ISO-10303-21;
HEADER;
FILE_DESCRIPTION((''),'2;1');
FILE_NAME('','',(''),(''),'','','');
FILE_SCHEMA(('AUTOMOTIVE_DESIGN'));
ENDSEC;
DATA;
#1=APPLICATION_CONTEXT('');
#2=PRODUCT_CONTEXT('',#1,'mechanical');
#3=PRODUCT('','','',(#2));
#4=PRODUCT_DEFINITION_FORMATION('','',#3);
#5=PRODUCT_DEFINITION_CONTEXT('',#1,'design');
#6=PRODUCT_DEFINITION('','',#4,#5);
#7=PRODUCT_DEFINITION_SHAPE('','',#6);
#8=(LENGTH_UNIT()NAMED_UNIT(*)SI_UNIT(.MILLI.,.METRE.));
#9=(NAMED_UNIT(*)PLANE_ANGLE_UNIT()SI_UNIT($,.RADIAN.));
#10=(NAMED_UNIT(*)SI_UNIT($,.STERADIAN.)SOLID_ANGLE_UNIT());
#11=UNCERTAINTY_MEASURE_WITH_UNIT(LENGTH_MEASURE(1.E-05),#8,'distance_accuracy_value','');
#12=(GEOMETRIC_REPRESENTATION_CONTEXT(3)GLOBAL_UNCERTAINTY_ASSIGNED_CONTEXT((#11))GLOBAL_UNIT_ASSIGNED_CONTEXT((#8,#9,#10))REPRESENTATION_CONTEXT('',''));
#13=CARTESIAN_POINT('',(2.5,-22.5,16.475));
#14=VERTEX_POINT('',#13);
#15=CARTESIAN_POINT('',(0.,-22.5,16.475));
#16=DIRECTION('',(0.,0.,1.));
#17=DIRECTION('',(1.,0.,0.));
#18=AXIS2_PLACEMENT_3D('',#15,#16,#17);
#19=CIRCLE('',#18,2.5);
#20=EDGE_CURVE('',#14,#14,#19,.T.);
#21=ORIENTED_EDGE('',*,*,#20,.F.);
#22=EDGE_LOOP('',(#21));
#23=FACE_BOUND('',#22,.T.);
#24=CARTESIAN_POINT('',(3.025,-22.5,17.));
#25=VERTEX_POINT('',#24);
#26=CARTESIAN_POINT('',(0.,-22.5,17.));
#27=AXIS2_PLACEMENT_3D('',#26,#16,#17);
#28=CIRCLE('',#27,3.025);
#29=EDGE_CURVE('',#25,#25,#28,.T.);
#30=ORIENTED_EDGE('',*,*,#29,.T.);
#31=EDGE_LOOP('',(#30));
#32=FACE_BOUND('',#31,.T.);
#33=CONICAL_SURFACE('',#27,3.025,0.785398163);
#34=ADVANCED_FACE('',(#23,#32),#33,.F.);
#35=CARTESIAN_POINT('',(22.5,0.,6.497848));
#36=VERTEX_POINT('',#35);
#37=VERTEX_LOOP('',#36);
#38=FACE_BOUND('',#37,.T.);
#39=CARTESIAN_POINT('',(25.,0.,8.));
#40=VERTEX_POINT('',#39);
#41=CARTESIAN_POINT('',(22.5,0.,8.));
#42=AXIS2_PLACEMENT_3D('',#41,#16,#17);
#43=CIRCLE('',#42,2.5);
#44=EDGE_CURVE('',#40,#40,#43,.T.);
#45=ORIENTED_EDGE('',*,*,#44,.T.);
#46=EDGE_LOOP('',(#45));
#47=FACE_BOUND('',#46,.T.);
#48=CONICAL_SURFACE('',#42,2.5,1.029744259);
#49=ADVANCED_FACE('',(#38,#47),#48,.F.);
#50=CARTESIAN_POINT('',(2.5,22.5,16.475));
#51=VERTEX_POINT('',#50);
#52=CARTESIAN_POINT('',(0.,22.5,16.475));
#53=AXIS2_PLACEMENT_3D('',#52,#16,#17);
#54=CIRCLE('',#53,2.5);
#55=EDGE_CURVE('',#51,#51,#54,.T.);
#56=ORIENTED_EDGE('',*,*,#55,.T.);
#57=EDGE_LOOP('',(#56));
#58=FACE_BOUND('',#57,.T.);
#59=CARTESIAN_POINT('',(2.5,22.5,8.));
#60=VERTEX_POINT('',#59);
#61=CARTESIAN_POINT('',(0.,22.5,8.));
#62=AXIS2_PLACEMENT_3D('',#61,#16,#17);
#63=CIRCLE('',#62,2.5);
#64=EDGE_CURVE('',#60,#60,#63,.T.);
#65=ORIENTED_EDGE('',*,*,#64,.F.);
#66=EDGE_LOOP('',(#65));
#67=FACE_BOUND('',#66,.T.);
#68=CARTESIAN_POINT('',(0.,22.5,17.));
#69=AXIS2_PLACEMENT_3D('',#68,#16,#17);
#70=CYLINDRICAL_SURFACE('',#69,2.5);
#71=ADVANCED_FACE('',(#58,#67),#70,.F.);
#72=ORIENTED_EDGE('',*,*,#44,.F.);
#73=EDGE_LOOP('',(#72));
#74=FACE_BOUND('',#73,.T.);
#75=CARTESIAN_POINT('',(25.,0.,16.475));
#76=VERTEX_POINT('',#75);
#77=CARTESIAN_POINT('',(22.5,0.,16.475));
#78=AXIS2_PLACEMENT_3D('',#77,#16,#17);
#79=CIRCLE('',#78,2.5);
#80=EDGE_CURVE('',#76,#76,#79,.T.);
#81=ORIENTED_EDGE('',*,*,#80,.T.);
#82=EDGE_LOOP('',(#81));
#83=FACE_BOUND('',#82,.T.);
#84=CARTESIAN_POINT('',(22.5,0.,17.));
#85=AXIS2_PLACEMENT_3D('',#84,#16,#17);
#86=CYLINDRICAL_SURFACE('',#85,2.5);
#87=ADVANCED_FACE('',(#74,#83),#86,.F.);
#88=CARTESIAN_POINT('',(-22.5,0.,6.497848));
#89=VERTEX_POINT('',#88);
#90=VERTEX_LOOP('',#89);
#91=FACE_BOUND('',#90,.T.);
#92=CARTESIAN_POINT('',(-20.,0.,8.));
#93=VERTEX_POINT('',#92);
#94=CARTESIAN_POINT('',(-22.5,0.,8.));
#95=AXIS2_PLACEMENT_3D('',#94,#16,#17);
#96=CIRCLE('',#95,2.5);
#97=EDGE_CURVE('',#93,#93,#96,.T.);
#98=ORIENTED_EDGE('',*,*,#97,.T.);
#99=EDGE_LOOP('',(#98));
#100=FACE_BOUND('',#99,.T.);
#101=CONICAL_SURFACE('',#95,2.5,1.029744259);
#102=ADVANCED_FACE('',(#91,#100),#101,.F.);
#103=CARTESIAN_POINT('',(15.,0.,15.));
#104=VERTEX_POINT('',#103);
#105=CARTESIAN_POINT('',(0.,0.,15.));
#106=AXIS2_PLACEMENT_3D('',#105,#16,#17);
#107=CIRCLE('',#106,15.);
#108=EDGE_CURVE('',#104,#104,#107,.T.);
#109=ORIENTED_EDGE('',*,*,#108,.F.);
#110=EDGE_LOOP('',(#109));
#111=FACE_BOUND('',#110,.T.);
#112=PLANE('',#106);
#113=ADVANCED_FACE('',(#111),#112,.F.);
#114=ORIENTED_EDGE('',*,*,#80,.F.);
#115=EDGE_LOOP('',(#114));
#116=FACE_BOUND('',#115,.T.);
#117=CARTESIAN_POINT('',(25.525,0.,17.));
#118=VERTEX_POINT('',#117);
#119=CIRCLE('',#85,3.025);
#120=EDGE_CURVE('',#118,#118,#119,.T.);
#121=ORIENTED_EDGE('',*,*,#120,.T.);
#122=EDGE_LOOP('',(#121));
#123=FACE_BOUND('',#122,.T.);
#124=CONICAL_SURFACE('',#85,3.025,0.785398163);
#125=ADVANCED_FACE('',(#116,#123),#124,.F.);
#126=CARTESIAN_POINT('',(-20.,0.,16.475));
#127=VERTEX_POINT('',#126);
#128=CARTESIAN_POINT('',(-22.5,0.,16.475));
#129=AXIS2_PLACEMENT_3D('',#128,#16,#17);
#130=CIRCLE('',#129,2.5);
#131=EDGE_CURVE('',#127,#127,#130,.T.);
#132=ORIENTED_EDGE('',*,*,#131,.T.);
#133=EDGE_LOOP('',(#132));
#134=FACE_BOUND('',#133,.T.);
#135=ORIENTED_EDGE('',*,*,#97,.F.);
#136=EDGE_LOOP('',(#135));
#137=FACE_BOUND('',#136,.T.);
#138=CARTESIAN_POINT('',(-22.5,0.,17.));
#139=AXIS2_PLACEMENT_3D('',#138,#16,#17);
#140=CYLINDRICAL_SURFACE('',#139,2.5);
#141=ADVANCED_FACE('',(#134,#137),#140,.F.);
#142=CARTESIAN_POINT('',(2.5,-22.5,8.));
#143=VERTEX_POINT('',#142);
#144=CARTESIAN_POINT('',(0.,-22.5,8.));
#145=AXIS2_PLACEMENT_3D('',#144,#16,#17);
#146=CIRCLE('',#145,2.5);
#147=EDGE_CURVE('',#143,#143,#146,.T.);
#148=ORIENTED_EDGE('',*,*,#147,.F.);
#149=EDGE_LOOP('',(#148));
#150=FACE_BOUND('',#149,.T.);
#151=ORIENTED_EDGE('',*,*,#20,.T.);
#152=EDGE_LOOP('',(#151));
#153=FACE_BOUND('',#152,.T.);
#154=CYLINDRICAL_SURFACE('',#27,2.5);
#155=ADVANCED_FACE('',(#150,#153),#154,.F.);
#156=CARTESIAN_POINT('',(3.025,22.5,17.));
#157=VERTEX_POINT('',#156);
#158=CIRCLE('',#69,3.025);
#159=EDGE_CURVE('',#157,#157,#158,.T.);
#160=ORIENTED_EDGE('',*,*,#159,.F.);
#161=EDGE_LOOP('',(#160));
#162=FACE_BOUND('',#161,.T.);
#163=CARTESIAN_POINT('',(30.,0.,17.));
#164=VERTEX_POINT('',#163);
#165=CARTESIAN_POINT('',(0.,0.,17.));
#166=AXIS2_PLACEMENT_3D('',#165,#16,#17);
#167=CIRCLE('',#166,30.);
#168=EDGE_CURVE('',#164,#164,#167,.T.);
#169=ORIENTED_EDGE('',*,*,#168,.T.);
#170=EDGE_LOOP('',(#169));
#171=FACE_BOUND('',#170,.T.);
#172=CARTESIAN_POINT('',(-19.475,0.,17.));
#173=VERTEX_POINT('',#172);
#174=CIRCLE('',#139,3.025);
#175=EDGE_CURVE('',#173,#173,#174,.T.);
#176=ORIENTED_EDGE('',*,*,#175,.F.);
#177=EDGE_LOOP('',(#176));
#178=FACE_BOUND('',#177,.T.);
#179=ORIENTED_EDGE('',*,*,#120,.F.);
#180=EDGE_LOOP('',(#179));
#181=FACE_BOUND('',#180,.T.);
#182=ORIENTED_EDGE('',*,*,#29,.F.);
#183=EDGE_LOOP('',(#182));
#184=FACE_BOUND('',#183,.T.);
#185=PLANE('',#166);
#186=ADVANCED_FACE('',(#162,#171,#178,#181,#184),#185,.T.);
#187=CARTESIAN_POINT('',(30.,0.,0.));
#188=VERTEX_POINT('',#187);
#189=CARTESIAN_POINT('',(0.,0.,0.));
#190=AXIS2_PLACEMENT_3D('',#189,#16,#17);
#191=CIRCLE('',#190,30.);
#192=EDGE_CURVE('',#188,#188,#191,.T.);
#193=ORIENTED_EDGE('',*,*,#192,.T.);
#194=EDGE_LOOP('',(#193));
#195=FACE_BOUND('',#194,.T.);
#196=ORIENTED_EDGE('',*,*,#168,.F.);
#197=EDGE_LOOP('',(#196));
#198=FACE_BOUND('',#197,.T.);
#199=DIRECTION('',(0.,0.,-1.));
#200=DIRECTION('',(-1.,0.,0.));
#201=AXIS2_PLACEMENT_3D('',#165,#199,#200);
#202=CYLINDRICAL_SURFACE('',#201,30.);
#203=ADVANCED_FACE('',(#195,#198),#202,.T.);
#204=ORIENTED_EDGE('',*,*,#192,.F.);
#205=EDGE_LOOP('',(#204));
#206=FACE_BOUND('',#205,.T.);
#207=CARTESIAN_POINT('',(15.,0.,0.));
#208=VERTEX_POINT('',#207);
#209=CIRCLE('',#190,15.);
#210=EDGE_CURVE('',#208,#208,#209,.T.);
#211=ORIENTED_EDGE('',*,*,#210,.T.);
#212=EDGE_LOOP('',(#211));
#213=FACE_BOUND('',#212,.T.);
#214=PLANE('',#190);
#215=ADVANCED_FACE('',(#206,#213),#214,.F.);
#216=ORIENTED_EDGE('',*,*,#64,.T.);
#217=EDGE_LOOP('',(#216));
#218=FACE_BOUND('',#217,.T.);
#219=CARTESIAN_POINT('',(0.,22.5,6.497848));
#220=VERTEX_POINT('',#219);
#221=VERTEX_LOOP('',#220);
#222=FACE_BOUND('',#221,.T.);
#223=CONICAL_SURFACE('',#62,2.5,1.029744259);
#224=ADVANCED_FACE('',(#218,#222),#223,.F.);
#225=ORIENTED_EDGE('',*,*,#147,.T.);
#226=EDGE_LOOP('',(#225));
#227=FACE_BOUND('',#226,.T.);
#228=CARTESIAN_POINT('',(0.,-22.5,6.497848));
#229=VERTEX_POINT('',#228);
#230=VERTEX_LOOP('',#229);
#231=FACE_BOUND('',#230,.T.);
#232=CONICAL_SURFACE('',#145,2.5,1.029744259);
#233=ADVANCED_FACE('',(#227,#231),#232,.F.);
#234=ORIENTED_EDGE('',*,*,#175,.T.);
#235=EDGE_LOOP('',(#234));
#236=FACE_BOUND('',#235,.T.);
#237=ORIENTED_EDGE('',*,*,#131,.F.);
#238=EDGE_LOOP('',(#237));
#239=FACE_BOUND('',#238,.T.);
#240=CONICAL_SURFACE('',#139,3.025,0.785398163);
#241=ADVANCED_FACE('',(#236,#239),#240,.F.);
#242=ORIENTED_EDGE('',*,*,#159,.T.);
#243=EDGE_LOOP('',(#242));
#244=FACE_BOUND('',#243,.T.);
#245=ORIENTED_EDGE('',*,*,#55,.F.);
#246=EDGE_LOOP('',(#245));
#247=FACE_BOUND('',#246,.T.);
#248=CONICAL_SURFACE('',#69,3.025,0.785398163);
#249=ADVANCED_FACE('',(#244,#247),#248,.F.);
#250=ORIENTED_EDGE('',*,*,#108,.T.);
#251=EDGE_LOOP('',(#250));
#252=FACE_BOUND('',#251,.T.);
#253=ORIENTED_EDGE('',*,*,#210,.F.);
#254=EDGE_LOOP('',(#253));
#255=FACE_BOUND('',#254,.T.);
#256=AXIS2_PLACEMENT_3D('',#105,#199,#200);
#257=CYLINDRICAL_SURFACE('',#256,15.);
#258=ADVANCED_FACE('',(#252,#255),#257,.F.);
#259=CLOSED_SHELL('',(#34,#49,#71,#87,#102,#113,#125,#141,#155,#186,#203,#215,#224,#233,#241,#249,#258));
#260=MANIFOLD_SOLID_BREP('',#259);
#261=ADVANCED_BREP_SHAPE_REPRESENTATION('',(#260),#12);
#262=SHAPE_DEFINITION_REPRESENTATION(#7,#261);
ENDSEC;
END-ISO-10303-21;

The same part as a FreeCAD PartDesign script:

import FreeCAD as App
import Part
import Sketcher
from FreeCAD import Vector
Q = App.Units.Quantity

doc = App.newDocument("Part")
body = doc.addObject("PartDesign::Body", "Body")

sketch1 = doc.addObject("Sketcher::SketchObject", "Sketch")
body.addObject(sketch1)
sketch1.AttachmentSupport = (doc.XY_Plane, [""])
sketch1.MapMode = "FlatFace"
sketch1.addGeometry(Part.Circle(Vector(0, 0, 0), Vector(0, 0, 1), 30), False)
sketch1.addConstraint([
    Sketcher.Constraint("Coincident", 0, 3, -1, 1),
    Sketcher.Constraint("Diameter", 0, Q("60 mm")),
])
pad1 = doc.addObject("PartDesign::Pad", "Pad")
body.addObject(pad1)
pad1.Profile = sketch1
pad1.Length = 17

sketch2 = doc.addObject("Sketcher::SketchObject", "Sketch001")
body.addObject(sketch2)
sketch2.AttachmentSupport = (doc.XY_Plane, [""])
sketch2.MapMode = "FlatFace"
sketch2.addGeometry(Part.Circle(Vector(0, 0, 0), Vector(0, 0, 1), 15), False)
sketch2.addConstraint([
    Sketcher.Constraint("Coincident", 0, 3, -1, 1),
    Sketcher.Constraint("Diameter", 0, Q("30 mm")),
])
pocket1 = doc.addObject("PartDesign::Pocket", "Pocket")
body.addObject(pocket1)
pocket1.Profile = sketch2
pocket1.Length = 15
pocket1.Reversed = True

sketch3 = doc.addObject("Sketcher::SketchObject", "Sketch002")
body.addObject(sketch3)
sketch3.AttachmentSupport = (doc.XY_Plane, [""])
sketch3.MapMode = "FlatFace"
sketch3.AttachmentOffset = App.Placement(Vector(0, 0, 17), App.Rotation())
sketch3.addGeometry([
    Part.Circle(Vector(0, -22.5, 0), Vector(0, 0, 1), 2.5),
    Part.Circle(Vector(22.5, 0, 0), Vector(0, 0, 1), 2.5),
    Part.Circle(Vector(0, 22.5, 0), Vector(0, 0, 1), 2.5),
    Part.Circle(Vector(-22.5, 0, 0), Vector(0, 0, 1), 2.5),
], False)
sketch3.addConstraint([
    Sketcher.Constraint("Equal", 0, 1),
    Sketcher.Constraint("Equal", 1, 2),
    Sketcher.Constraint("Equal", 2, 3),
    Sketcher.Constraint("Symmetric", 0, 3, 2, 3, -1, 1),
    Sketcher.Constraint("Symmetric", 1, 3, 3, 3, -1, 1),
    Sketcher.Constraint("PointOnObject", 0, 3, -2),
    Sketcher.Constraint("PointOnObject", 1, 3, -1),
    Sketcher.Constraint("Diameter", 0, Q("5 mm")),
    Sketcher.Constraint("DistanceY", 0, 3, 2, 3, Q("45 mm")),
    Sketcher.Constraint("DistanceX", 3, 3, 1, 3, Q("45 mm")),
])
doc.recompute()
hole = doc.addObject("PartDesign::Hole", "Hole")
body.addObject(hole)
hole.Profile = sketch3
hole.ThreadType = "None"
hole.Diameter = 5
hole.DepthType = "Dimension"
hole.Depth = 9
hole.DrillPoint = "Angled"
hole.DrillPointAngle = 118
hole.HoleCutType = "Countersink"
hole.HoleCutDiameter = 6.05
hole.HoleCutCountersinkAngle = 90

doc.recompute()
